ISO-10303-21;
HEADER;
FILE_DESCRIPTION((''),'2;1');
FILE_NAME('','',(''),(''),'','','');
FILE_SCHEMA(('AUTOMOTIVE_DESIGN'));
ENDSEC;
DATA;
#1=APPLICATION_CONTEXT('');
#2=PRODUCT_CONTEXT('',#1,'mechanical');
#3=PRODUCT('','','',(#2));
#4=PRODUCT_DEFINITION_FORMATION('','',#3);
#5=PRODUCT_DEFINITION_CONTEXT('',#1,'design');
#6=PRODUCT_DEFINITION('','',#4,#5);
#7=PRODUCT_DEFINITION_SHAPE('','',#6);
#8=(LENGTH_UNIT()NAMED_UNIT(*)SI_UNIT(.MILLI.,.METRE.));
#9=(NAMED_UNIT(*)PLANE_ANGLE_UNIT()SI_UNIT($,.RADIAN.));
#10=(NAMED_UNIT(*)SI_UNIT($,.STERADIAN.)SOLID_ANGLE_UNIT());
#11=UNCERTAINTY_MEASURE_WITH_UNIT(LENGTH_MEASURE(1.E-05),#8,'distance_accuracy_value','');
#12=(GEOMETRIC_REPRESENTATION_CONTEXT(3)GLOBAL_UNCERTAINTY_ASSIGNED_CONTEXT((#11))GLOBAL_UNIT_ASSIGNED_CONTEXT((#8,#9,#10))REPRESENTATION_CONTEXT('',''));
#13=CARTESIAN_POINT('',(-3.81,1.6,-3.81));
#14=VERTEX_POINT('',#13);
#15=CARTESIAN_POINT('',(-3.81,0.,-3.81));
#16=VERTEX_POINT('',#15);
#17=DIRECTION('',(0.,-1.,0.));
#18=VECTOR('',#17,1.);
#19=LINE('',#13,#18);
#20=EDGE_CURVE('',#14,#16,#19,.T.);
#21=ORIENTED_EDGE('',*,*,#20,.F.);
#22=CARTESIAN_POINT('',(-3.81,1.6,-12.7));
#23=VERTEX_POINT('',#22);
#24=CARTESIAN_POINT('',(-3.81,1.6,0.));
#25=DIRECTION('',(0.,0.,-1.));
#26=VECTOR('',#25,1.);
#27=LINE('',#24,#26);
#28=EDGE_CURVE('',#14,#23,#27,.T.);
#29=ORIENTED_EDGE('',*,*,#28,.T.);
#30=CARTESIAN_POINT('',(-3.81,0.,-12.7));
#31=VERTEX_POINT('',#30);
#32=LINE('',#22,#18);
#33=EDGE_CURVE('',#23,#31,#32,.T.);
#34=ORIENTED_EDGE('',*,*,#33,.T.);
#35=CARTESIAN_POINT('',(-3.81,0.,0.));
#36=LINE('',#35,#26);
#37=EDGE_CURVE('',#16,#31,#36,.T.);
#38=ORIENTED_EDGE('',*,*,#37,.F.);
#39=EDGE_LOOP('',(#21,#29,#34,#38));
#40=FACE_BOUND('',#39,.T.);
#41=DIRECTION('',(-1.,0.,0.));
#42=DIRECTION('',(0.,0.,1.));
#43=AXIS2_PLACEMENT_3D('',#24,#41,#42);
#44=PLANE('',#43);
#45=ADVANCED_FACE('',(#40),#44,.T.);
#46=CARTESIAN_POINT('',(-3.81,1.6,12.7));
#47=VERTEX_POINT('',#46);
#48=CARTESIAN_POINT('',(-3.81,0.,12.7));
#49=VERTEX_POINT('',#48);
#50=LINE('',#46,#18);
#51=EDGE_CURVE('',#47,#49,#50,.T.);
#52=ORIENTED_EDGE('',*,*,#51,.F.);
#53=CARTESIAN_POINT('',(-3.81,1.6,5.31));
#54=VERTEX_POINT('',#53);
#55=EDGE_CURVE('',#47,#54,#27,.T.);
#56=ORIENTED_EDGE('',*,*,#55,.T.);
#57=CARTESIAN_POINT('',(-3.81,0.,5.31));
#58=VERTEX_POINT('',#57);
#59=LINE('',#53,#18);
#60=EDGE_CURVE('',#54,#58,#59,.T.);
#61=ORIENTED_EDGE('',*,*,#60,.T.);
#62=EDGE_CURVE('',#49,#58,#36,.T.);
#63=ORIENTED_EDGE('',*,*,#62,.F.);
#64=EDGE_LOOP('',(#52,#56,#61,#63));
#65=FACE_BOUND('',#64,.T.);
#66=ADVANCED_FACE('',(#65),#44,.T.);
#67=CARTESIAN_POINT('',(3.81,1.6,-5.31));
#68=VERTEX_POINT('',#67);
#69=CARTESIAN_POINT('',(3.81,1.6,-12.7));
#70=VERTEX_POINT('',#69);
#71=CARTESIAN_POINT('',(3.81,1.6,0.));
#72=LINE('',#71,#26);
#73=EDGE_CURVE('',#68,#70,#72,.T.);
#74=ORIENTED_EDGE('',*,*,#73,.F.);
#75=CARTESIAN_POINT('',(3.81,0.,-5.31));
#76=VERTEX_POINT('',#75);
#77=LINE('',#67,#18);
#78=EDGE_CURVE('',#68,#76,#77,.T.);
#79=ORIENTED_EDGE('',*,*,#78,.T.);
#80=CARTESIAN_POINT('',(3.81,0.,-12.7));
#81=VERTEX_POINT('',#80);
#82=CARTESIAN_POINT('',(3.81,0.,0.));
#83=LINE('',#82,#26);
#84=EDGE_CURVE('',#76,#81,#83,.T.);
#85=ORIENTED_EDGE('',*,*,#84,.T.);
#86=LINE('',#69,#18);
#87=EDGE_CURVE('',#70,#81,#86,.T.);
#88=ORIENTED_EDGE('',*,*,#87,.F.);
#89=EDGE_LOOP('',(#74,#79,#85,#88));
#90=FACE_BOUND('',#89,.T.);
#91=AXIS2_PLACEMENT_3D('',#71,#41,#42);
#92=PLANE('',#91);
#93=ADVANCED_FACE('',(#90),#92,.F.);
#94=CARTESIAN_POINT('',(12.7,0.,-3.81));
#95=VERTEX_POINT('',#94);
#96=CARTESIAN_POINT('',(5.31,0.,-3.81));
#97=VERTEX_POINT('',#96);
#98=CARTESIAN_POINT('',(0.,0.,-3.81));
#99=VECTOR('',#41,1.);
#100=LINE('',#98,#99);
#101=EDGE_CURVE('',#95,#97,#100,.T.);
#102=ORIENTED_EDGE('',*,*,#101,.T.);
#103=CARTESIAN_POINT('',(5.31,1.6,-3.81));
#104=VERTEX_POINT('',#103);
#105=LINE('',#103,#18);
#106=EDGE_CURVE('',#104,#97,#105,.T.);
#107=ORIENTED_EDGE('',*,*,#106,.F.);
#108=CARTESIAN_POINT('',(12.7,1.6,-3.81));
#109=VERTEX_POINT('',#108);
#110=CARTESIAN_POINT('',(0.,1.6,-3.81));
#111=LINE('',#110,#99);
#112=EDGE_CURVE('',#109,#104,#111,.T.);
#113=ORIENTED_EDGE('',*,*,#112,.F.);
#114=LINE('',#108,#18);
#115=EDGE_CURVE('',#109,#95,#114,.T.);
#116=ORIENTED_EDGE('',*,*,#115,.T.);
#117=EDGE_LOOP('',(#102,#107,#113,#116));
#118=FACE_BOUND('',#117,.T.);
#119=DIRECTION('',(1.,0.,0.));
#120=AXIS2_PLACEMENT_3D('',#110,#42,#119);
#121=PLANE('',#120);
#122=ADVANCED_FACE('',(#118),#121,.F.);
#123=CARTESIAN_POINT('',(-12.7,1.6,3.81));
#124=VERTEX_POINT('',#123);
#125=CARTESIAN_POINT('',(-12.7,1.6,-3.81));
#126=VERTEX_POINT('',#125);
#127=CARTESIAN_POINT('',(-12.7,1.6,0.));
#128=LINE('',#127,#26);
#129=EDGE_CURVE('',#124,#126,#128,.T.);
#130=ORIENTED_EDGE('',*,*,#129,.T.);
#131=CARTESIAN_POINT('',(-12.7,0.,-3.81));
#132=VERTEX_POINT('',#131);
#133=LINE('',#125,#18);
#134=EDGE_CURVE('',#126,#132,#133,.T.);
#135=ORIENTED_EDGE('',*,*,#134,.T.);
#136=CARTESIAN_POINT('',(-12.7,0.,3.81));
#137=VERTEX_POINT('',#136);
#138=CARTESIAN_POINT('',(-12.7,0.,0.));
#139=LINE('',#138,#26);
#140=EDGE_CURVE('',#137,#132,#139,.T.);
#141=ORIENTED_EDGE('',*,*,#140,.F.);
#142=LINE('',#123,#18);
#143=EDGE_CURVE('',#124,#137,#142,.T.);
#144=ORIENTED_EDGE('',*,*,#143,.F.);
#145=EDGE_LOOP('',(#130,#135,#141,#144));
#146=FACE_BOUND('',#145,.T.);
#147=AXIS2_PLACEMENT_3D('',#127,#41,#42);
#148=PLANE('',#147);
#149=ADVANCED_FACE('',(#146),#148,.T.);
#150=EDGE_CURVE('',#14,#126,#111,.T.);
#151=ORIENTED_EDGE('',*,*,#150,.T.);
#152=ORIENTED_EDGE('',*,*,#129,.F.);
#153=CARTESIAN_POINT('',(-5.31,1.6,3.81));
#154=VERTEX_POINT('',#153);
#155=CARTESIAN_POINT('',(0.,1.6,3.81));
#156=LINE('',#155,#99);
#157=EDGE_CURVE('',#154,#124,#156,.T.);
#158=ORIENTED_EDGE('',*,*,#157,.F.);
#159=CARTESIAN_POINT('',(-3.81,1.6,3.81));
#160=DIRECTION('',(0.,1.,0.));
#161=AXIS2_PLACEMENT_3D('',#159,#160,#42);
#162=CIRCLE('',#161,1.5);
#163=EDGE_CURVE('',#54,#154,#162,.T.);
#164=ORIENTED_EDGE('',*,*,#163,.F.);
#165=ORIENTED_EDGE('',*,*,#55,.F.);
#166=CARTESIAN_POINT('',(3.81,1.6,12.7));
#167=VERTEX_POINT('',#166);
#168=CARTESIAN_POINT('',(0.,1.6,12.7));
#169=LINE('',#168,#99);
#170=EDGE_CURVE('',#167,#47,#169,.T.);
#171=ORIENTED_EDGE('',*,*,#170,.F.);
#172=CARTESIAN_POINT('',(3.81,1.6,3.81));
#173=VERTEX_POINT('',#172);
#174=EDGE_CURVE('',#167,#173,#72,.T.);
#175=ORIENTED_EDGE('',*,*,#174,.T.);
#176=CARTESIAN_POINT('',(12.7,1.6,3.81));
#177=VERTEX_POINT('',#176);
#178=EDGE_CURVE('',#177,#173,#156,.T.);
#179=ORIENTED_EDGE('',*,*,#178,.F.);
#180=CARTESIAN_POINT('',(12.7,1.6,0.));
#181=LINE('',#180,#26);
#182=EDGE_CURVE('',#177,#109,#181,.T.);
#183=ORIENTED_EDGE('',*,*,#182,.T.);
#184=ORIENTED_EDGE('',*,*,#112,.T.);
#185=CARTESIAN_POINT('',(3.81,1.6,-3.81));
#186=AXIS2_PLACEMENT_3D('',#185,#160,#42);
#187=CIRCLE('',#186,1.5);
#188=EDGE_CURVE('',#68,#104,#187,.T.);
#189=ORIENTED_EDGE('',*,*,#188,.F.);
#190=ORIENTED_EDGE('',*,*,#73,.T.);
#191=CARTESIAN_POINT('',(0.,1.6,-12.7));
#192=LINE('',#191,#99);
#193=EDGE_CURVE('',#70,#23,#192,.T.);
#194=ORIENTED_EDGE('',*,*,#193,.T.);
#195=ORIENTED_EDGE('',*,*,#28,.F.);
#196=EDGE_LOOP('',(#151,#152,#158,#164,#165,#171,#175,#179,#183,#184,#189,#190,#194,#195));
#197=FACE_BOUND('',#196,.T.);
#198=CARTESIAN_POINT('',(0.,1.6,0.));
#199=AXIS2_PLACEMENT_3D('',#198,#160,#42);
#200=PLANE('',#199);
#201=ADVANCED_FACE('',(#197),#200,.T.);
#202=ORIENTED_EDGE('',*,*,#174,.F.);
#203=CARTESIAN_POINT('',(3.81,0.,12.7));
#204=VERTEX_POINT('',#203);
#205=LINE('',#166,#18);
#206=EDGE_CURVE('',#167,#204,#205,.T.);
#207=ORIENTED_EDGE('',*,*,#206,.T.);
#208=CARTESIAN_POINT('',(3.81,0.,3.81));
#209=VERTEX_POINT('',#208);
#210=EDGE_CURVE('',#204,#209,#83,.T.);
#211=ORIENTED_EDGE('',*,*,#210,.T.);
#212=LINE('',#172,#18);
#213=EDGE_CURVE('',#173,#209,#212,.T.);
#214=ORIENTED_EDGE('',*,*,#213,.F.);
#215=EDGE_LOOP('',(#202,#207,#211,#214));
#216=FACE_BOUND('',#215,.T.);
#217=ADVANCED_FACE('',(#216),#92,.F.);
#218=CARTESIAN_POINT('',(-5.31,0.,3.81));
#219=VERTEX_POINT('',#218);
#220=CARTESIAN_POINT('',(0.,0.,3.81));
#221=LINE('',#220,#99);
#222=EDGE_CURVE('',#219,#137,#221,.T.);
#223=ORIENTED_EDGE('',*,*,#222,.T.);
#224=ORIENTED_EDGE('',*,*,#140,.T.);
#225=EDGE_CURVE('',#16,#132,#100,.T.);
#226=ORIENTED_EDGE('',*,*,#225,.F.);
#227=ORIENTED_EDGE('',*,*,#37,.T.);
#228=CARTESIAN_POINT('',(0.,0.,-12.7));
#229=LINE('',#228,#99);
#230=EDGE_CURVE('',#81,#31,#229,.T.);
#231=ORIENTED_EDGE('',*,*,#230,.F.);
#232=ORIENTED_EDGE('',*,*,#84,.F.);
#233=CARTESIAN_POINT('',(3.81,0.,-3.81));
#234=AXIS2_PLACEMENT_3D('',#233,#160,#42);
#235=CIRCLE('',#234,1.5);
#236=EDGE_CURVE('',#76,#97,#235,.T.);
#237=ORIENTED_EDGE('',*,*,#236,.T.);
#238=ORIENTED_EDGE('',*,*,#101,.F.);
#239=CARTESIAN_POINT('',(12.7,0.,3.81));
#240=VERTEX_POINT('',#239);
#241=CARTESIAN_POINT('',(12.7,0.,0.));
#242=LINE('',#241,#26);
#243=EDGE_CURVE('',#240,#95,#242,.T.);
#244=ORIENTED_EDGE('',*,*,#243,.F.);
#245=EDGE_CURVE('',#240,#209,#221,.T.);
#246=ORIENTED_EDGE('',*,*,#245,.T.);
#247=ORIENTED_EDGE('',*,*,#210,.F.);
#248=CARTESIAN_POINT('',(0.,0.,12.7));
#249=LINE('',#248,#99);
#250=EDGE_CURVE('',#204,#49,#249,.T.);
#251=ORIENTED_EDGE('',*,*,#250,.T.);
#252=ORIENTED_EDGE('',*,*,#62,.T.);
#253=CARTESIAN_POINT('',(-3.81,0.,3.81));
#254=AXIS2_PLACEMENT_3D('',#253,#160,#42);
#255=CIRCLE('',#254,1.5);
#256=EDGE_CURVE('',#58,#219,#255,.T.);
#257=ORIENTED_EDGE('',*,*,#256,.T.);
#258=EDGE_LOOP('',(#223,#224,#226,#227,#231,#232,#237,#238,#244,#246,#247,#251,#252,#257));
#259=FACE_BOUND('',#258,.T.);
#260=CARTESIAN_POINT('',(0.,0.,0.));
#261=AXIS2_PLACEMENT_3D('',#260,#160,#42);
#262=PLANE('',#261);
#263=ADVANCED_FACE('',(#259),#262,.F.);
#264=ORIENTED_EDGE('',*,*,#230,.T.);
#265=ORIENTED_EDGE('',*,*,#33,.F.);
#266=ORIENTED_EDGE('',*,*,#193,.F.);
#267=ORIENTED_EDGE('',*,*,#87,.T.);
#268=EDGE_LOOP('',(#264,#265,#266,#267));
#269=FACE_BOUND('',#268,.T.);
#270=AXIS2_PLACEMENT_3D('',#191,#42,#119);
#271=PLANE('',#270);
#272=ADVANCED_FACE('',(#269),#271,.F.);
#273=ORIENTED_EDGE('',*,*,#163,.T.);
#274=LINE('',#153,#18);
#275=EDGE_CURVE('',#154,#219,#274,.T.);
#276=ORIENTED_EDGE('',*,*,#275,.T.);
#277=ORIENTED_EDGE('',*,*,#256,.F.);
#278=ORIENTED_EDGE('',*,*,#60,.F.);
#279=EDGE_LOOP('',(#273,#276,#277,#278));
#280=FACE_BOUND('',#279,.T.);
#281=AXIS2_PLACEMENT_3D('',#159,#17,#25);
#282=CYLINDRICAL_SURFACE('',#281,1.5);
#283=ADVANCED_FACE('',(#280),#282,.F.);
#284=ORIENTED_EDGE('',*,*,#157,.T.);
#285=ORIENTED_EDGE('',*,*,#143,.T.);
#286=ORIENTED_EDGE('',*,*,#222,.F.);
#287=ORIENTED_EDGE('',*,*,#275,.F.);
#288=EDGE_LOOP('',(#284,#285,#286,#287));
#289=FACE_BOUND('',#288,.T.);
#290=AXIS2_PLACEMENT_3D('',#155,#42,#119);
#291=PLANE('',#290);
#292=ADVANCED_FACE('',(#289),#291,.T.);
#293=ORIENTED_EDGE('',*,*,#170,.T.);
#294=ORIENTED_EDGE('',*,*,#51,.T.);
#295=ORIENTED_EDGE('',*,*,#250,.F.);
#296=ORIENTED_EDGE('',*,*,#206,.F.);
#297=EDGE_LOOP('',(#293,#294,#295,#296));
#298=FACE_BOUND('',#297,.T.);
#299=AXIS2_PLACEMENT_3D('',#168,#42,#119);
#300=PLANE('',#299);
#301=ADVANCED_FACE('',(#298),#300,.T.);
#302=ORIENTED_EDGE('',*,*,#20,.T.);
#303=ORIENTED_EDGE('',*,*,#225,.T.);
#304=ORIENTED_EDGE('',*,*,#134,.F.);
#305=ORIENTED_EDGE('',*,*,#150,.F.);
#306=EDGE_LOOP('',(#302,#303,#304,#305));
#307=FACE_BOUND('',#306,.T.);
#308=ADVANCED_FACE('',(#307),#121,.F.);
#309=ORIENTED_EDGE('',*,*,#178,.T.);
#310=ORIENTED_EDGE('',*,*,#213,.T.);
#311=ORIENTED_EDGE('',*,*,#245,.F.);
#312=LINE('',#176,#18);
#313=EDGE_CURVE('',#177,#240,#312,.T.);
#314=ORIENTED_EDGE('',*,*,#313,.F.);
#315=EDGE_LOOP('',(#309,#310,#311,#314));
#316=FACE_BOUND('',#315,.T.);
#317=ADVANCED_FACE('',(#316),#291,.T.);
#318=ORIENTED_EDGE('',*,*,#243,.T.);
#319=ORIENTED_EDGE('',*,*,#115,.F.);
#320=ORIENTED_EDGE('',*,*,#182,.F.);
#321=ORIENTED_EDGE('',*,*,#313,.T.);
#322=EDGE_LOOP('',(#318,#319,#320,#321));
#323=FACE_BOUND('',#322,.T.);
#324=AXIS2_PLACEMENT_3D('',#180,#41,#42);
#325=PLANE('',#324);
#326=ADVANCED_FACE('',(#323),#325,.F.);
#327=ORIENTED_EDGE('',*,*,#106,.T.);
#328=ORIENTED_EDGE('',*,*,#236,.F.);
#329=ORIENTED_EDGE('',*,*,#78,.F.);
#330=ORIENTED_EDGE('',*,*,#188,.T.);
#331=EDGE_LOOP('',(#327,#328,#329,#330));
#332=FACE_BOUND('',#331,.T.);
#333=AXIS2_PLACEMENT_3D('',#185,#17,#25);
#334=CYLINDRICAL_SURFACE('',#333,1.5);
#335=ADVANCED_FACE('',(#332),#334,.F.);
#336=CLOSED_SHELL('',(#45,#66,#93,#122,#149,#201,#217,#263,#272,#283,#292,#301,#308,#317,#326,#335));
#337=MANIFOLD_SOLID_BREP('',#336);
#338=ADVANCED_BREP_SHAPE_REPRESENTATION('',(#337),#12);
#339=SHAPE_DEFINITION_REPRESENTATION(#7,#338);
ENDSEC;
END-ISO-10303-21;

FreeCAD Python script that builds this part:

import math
import FreeCAD as App
import Part
import Sketcher
from FreeCAD import Vector

doc = App.newDocument("Part")
body = doc.addObject("PartDesign::Body", "Body")

sketch1 = body.newObject("Sketcher::SketchObject", "Sketch")
sketch1.AttachmentSupport = (doc.getObject("XZ_Plane"), [""])
sketch1.MapMode = "FlatFace"
sketch1.addGeometry([
    Part.LineSegment(Vector(-12.7, 3.81, 0), Vector(-5.31, 3.81, 0)),
    Part.ArcOfCircle(Part.Circle(Vector(-3.81, 3.81, 0), Vector(0, 0, 1), 1.5), math.radians(180), math.radians(270)),
    Part.ArcOfCircle(Part.Circle(Vector(-3.81, 3.81, 0), Vector(0, 0, 1), 1.5), math.radians(-90), math.radians(0)),
    Part.ArcOfCircle(Part.Circle(Vector(-3.81, 3.81, 0), Vector(0, 0, 1), 1.5), math.radians(0), math.radians(90)),
    Part.LineSegment(Vector(-3.81, 5.31, 0), Vector(-3.81, 12.7, 0)),
    Part.LineSegment(Vector(-3.81, 12.7, 0), Vector(3.81, 12.7, 0)),
    Part.LineSegment(Vector(3.81, 12.7, 0), Vector(3.81, 3.81, 0)),
    Part.LineSegment(Vector(3.81, 3.81, 0), Vector(12.7, 3.81, 0)),
    Part.LineSegment(Vector(12.7, 3.81, 0), Vector(12.7, -3.81, 0)),
    Part.LineSegment(Vector(12.7, -3.81, 0), Vector(5.31, -3.81, 0)),
    Part.ArcOfCircle(Part.Circle(Vector(3.81, -3.81, 0), Vector(0, 0, 1), 1.5), math.radians(0), math.radians(90)),
    Part.ArcOfCircle(Part.Circle(Vector(3.81, -3.81, 0), Vector(0, 0, 1), 1.5), math.radians(90), math.radians(180)),
    Part.ArcOfCircle(Part.Circle(Vector(3.81, -3.81, 0), Vector(0, 0, 1), 1.5), math.radians(180), math.radians(270)),
    Part.LineSegment(Vector(3.81, -5.31, 0), Vector(3.81, -12.7, 0)),
    Part.LineSegment(Vector(3.81, -12.7, 0), Vector(-3.81, -12.7, 0)),
    Part.LineSegment(Vector(-3.81, -12.7, 0), Vector(-3.81, -3.81, 0)),
    Part.LineSegment(Vector(-3.81, -3.81, 0), Vector(-12.7, -3.81, 0)),
    Part.LineSegment(Vector(-12.7, -3.81, 0), Vector(-12.7, 3.81, 0)),
], False)
sketch1.addConstraint([
    Sketcher.Constraint("Coincident", 0, 2, 1, 1),
    Sketcher.Constraint("Tangent", 1, 2, 2, 1),
    Sketcher.Constraint("Tangent", 2, 2, 3, 1),
    Sketcher.Constraint("Coincident", 3, 2, 4, 1),
    Sketcher.Constraint("Coincident", 4, 2, 5, 1),
    Sketcher.Constraint("Coincident", 5, 2, 6, 1),
    Sketcher.Constraint("Coincident", 6, 2, 7, 1),
    Sketcher.Constraint("Coincident", 7, 2, 8, 1),
    Sketcher.Constraint("Coincident", 8, 2, 9, 1),
    Sketcher.Constraint("Coincident", 9, 2, 10, 1),
    Sketcher.Constraint("Tangent", 10, 2, 11, 1),
    Sketcher.Constraint("Tangent", 11, 2, 12, 1),
    Sketcher.Constraint("Coincident", 12, 2, 13, 1),
    Sketcher.Constraint("Coincident", 13, 2, 14, 1),
    Sketcher.Constraint("Coincident", 14, 2, 15, 1),
    Sketcher.Constraint("Coincident", 15, 2, 16, 1),
    Sketcher.Constraint("Coincident", 16, 2, 17, 1),
    Sketcher.Constraint("Coincident", 17, 2, 0, 1),
    Sketcher.Constraint("Horizontal", 0),
    Sketcher.Constraint("Vertical", 4),
    Sketcher.Constraint("Horizontal", 5),
    Sketcher.Constraint("Vertical", 6),
    Sketcher.Constraint("Horizontal", 7),
    Sketcher.Constraint("Vertical", 8),
    Sketcher.Constraint("Horizontal", 9),
    Sketcher.Constraint("Vertical", 13),
    Sketcher.Constraint("Horizontal", 14),
    Sketcher.Constraint("Vertical", 15),
    Sketcher.Constraint("Horizontal", 16),
    Sketcher.Constraint("Vertical", 17),
    Sketcher.Constraint("Coincident", 3, 3, 1, 3),
    Sketcher.Constraint("Coincident", 12, 3, 10, 3),
    Sketcher.Constraint("Equal", 3, 10),
    Sketcher.Constraint("Symmetric", 1, 3, 10, 3, -1, 1),
    Sketcher.Constraint("Symmetric", 4, 2, 13, 2, -1, 1),
    Sketcher.Constraint("Symmetric", 6, 2, 15, 2, -1, 1),
    Sketcher.Constraint("Symmetric", 8, 2, 17, 2, -1, 1),
    Sketcher.Constraint("Horizontal", 3, 3, 0, 2),
    Sketcher.Constraint("Horizontal", 0, 2, 2, 2),
    Sketcher.Constraint("Horizontal", 2, 2, 6, 2),
    Sketcher.Constraint("Horizontal", 9, 2, 11, 2),
    Sketcher.Constraint("Vertical", 3, 3, 1, 2),
    Sketcher.Constraint("Vertical", 1, 2, 3, 2),
    Sketcher.Constraint("Vertical", 12, 3, 5, 2),
    Sketcher.Constraint("Vertical", 6, 2, 10, 2),
    Sketcher.Constraint("Equal", 9, 4),
    Sketcher.Constraint("Equal", 14, 8),
    Sketcher.Constraint("Radius", 1, 1.5),
    Sketcher.Constraint("DistanceX", 0, 1, 0, 2, 7.39),
    Sketcher.Constraint("DistanceX", 5, 1, 5, 2, 7.62),
])
pad1 = body.newObject("PartDesign::Pad", "Pad")
pad1.Profile = sketch1
pad1.Length = 1.6
pad1.Reversed = True

doc.recompute()
